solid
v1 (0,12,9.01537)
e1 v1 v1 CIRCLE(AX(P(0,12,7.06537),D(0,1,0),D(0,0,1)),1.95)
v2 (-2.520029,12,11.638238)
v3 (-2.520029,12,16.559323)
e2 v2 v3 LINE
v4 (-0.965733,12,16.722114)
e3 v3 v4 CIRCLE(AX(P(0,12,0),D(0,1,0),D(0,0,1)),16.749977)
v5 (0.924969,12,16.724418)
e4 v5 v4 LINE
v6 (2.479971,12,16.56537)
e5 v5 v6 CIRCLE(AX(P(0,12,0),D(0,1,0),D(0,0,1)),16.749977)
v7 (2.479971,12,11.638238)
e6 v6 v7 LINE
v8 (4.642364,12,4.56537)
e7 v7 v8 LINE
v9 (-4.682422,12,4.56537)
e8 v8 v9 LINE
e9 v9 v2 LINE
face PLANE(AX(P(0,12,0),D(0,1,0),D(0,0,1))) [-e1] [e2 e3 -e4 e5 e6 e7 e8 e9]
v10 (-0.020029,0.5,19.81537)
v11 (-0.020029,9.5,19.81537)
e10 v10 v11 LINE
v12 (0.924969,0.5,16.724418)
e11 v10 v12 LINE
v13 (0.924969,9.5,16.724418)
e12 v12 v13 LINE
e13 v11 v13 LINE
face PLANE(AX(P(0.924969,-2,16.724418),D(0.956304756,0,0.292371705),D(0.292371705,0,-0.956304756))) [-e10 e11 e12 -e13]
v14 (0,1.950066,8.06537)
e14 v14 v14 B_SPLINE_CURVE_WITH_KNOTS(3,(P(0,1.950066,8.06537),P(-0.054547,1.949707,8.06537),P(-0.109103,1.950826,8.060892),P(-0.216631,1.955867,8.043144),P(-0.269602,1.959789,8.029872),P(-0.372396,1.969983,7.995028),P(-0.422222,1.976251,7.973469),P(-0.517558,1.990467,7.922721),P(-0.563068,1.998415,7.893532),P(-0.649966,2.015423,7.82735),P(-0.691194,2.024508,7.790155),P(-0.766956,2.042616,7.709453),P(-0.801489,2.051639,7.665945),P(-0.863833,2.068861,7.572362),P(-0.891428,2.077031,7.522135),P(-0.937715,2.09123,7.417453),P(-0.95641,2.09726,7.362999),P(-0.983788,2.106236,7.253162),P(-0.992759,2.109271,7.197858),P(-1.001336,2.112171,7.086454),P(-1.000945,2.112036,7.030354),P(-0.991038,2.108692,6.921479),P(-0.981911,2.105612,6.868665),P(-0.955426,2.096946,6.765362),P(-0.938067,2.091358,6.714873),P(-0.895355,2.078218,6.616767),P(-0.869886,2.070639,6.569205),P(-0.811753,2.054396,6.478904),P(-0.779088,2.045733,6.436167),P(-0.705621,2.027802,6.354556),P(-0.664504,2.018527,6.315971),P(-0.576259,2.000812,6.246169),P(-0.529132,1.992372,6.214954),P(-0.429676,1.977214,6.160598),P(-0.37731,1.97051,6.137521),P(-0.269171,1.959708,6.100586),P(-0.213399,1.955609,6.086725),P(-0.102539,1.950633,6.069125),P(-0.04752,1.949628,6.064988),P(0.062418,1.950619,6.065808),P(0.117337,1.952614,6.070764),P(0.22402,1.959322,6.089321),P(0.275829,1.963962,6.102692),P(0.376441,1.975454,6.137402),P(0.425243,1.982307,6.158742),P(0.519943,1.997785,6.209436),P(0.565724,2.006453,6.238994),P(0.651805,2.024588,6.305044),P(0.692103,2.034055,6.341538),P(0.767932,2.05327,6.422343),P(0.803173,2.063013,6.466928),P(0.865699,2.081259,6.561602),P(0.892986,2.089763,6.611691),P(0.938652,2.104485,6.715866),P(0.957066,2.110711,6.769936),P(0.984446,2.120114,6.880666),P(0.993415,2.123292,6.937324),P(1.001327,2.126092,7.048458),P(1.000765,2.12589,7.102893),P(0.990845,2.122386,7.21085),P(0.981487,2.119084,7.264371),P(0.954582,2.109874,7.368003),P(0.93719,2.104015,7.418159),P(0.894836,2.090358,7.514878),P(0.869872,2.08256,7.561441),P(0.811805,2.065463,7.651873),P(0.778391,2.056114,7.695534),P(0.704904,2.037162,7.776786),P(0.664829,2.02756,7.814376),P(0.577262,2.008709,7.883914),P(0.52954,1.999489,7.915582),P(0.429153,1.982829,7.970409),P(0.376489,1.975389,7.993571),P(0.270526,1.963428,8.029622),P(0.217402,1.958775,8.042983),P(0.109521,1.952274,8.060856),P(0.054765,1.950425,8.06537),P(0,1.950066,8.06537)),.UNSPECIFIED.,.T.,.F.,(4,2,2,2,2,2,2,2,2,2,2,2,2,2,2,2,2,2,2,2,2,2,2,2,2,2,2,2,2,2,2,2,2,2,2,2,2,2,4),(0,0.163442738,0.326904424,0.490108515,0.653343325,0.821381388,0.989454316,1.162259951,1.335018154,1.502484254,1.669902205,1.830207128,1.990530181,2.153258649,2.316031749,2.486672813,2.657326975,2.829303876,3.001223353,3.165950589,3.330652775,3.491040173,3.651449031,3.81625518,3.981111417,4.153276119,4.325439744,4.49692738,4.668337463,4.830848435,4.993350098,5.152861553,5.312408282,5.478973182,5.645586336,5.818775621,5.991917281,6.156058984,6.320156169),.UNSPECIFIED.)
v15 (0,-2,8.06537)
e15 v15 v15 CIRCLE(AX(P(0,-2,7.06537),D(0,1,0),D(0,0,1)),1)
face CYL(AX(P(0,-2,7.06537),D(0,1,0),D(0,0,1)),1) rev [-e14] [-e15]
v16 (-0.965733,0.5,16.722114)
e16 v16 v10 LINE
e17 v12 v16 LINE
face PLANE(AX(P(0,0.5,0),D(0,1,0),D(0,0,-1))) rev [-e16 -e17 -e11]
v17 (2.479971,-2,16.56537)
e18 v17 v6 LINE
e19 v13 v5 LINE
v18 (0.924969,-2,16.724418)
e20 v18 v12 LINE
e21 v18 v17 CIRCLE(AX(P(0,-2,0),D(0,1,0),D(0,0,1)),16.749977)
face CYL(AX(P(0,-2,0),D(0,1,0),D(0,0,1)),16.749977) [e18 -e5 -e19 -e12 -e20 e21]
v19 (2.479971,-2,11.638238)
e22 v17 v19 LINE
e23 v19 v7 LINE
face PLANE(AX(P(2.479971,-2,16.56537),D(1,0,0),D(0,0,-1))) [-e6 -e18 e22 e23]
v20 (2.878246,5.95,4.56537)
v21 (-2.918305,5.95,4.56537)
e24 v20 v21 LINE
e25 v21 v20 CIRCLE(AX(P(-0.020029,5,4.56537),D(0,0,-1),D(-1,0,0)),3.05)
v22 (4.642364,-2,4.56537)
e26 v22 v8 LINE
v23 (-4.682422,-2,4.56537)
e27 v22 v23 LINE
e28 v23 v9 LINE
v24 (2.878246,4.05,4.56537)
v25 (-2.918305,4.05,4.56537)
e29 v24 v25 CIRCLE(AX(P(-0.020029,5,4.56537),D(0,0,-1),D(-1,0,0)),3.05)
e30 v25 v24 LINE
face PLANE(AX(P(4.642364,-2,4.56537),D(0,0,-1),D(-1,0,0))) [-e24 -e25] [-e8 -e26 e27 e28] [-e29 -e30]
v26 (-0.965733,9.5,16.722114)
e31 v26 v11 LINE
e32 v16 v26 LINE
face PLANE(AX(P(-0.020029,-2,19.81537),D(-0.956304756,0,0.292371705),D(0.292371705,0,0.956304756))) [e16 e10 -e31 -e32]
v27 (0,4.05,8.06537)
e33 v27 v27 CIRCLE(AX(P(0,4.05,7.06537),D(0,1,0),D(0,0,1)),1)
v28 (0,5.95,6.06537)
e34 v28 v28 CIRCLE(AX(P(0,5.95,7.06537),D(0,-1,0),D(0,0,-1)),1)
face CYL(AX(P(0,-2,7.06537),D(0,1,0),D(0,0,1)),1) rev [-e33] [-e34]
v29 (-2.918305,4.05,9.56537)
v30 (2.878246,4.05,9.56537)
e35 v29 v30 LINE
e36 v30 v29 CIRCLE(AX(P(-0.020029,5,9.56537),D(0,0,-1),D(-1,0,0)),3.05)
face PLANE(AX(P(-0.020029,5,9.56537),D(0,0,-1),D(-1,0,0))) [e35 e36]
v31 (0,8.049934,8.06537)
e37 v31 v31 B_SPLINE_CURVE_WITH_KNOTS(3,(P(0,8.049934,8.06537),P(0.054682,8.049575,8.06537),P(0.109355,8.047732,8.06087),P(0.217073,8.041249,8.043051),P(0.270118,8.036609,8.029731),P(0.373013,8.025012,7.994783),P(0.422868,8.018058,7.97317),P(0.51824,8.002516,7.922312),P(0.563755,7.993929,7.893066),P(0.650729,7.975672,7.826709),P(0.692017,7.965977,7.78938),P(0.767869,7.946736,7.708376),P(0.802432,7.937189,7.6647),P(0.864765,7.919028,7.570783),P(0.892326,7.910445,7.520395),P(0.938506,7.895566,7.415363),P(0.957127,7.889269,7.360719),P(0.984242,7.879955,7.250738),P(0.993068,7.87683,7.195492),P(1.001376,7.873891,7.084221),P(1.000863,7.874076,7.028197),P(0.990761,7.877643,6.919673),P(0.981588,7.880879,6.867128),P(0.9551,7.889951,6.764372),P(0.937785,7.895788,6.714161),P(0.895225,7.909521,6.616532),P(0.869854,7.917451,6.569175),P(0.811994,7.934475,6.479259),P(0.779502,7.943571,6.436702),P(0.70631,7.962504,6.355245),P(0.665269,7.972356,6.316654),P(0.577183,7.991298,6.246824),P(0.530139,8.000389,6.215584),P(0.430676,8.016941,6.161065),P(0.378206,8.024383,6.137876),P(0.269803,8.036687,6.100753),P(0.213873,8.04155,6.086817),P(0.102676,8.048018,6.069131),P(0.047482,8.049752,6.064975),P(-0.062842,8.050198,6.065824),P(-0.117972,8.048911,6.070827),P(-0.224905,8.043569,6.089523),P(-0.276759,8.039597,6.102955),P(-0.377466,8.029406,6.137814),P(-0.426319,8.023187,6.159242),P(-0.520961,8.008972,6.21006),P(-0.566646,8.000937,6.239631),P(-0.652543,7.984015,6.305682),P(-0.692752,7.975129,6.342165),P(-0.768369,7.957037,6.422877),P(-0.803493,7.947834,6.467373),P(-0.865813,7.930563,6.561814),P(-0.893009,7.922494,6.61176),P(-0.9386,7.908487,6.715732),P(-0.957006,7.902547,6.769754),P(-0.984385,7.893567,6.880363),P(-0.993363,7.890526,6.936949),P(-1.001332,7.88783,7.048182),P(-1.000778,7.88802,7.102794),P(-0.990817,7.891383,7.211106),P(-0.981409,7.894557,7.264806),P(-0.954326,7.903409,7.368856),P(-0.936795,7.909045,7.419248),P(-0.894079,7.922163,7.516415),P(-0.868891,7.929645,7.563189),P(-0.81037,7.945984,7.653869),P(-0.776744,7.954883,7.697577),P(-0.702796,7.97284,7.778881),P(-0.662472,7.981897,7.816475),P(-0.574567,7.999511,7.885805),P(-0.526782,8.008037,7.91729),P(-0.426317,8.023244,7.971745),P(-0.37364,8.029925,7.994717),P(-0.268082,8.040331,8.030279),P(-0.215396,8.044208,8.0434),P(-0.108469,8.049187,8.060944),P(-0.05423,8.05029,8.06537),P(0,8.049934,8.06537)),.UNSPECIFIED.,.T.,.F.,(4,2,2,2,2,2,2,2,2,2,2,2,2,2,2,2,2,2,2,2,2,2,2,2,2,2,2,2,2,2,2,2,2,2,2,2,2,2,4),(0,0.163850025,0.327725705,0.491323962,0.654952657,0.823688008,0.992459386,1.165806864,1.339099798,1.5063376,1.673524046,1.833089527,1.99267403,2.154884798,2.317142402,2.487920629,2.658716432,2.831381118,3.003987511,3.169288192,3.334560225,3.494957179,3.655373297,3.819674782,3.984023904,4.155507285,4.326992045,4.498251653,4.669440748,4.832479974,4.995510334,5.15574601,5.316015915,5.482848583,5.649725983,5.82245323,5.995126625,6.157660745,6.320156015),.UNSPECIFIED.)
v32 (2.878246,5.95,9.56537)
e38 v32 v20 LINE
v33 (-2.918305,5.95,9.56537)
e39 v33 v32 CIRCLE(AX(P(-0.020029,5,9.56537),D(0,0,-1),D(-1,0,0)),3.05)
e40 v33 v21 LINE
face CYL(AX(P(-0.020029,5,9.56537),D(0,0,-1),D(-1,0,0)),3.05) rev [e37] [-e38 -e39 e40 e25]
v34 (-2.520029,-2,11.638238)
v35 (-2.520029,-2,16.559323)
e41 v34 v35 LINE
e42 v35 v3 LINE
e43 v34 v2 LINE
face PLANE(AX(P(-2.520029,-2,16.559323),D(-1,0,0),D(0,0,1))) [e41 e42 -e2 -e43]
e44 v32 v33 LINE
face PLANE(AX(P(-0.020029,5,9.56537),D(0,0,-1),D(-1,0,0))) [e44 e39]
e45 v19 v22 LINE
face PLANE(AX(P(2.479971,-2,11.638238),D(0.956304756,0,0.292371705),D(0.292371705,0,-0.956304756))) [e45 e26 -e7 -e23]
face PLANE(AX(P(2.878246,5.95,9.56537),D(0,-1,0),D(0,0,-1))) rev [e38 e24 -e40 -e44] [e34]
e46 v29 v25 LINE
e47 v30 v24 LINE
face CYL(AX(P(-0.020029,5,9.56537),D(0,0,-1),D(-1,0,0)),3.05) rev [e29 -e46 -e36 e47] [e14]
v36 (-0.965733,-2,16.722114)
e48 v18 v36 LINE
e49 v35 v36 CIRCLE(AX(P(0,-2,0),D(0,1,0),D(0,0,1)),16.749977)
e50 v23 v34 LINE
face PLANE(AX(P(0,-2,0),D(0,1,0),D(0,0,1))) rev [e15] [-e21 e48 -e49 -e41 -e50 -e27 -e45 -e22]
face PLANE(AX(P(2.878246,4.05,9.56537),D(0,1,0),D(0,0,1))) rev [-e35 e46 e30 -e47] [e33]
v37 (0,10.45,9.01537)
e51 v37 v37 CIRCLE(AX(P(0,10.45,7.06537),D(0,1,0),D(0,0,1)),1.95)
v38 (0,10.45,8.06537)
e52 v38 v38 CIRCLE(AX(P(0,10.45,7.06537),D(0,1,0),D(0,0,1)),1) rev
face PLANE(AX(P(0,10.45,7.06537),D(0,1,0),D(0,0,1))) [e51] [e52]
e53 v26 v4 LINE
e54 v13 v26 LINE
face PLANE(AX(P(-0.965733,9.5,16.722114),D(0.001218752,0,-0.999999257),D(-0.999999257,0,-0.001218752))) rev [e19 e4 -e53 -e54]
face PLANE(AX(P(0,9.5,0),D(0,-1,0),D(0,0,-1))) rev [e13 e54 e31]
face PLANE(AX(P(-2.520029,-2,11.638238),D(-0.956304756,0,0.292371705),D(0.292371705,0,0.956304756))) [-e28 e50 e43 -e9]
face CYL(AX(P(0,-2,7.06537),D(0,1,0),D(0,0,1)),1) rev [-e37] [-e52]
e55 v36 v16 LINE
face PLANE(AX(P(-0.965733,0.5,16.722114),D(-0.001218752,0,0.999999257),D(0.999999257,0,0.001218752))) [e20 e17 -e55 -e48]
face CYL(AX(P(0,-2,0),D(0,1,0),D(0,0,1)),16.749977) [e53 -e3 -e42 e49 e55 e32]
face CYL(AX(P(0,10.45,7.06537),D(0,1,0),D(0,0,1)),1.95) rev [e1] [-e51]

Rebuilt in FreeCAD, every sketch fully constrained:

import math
import FreeCAD as App
import Part
import Sketcher

V = App.Vector
Q = App.Units.Quantity


def add_polygon(sketch, points):
    """Adds a closed chain of lines whose ends are joined by coincident constraints."""
    first, n = sketch.GeometryCount, len(points)
    for a, b in zip(points, points[1:] + points[:1]):
        sketch.addGeometry(Part.LineSegment(App.Vector(*a, 0), App.Vector(*b, 0)), False)
    for i in range(n):
        sketch.addConstraint(Sketcher.Constraint("Coincident", first + i, 2, first + (i + 1) % n, 1))

doc = App.newDocument("Part")
body = doc.addObject("PartDesign::Body", "Body")

# Sketch on XZ plane
sketch1 = body.newObject("Sketcher::SketchObject", "Sketch")
sketch1.AttachmentSupport = (doc.getObject("XZ_Plane"), [""])
sketch1.MapMode = "FlatFace"
sketch1.addGeometry([
    Part.LineSegment(V(4.6, 4.6, 0), V(-4.7, 4.6, 0)),  # 0
    Part.LineSegment(V(-4.7, 4.6, 0), V(-2.5, 11.6, 0)),  # 1
    Part.LineSegment(V(-2.5, 11.6, 0), V(-2.5, 16.6, 0)),  # 2
    Part.ArcOfCircle(Part.Circle(V(0, 0, 0), V(0, 0, 1), 16.7), math.radians(93.31), math.radians(98.65)),  # 3
    Part.LineSegment(V(-1, 16.7, 0), V(0, 19.8, 0)),  # 4
    Part.LineSegment(V(0, 19.8, 0), V(0.9, 16.7, 0)),  # 5
    Part.ArcOfCircle(Part.Circle(V(0, 0, 0), V(0, 0, 1), 16.7), math.radians(81.49), math.radians(86.83)),  # 6
    Part.LineSegment(V(2.5, 16.6, 0), V(2.5, 11.6, 0)),  # 7
    Part.LineSegment(V(2.5, 11.6, 0), V(4.6, 4.6, 0)),  # 8
], False)
sketch1.addConstraint([
    Sketcher.Constraint("Coincident", 0, 2, 1, 1),
    Sketcher.Constraint("Coincident", 1, 2, 2, 1),
    Sketcher.Constraint("Coincident", 2, 2, 3, 2),
    Sketcher.Constraint("Coincident", 3, 1, 4, 1),
    Sketcher.Constraint("Coincident", 4, 2, 5, 1),
    Sketcher.Constraint("Coincident", 5, 2, 6, 2),
    Sketcher.Constraint("Coincident", 6, 1, 7, 1),
    Sketcher.Constraint("Coincident", 7, 2, 8, 1),
    Sketcher.Constraint("Coincident", 8, 2, 0, 1),
    Sketcher.Constraint("Horizontal", 0),
    Sketcher.Constraint("Vertical", 2),
    Sketcher.Constraint("Vertical", 7),
    Sketcher.Constraint("Coincident", 3, 3, -1, 1),
    Sketcher.Constraint("Coincident", 6, 3, -1, 1),
    Sketcher.Constraint("Equal", 3, 6),
    Sketcher.Constraint("Parallel", 1, 4),
    Sketcher.Constraint("Parallel", 5, 8),
    Sketcher.Constraint("Horizontal", 1, 2, 7, 2),
    Sketcher.Constraint("Equal", 1, 8),
    Sketcher.Constraint("Angle", 1, Q("73 deg")),
    Sketcher.Constraint("DistanceX", 2, 2, 6, 1, Q("5 mm")),
    Sketcher.Constraint("DistanceX", 2, 2, 4, 2, Q("2.5 mm")),
    Sketcher.Constraint("DistanceY", 0, 2, 4, 2, Q("15.25 mm")),
    Sketcher.Constraint("DistanceY", 6, 1, 4, 2, Q("3.25 mm")),
    Sketcher.Constraint("Radius", 3, Q("16.749977 mm")),
    Sketcher.Constraint("DistanceX", 4, 2, 5, 2, Q("0.944999 mm")),
    Sketcher.Constraint("DistanceY", 7, 2, 7, 1, Q("4.927132 mm")),
])
pad1 = body.newObject("PartDesign::Pad", "Pad")
pad1.Profile = sketch1
pad1.Type = "TwoLengths"
pad1.Length = 12
pad1.Length2 = 2
pad1.Reversed = True

# Sketch on XY plane
sketch2 = body.newObject("Sketcher::SketchObject", "Sketch001")
sketch2.AttachmentSupport = (doc.getObject("XY_Plane"), [""])
sketch2.MapMode = "FlatFace"
sketch2.AttachmentOffset = App.Placement(V(0, 0, 4.56537), App.Rotation())
sketch2.addGeometry([
    Part.LineSegment(V(2.9, 6, 0), V(-2.9, 6, 0)),
    Part.ArcOfCircle(Part.Circle(V(0, 5, 0), V(0, 0, 1), 3), math.radians(18), math.radians(162)),
    Part.LineSegment(V(-2.9, 4, 0), V(2.9, 4, 0)),
    Part.ArcOfCircle(Part.Circle(V(0, 5, 0), V(0, 0, 1), 3), math.radians(-162), math.radians(-18)),
], False)
sketch2.addConstraint([
    Sketcher.Constraint("Coincident", 0, 1, 1, 1),
    Sketcher.Constraint("Coincident", 1, 2, 0, 2),
    Sketcher.Constraint("Coincident", 2, 1, 3, 1),
    Sketcher.Constraint("Coincident", 3, 2, 2, 2),
    Sketcher.Constraint("Horizontal", 0),
    Sketcher.Constraint("Horizontal", 2),
    Sketcher.Constraint("Coincident", 3, 3, 1, 3),
    Sketcher.Constraint("Equal", 1, 3),
    Sketcher.Constraint("Vertical", 1, 2, 2, 1),
    Sketcher.Constraint("Radius", 1, Q("3.05 mm")),
    Sketcher.Constraint("DistanceY", -1, 1, 1, 3, Q("5 mm")),
    Sketcher.Constraint("DistanceY", 2, 1, 1, 2, Q("1.9 mm")),
    Sketcher.Constraint("DistanceX", 1, 3, -1, 1, Q("0.020029 mm")),
])
pocket1 = body.newObject("PartDesign::Pocket", "Pocket")
pocket1.Profile = sketch2
pocket1.Length = 5
pocket1.Reversed = True

# Sketch on XZ plane
sketch3 = body.newObject("Sketcher::SketchObject", "Sketch002")
sketch3.AttachmentSupport = (doc.getObject("XZ_Plane"), [""])
sketch3.MapMode = "FlatFace"
sketch3.AttachmentOffset = App.Placement(V(0, 0, -5.74), App.Rotation())
sketch3.addGeometry(Part.Circle(V(0, 7.1, 0), V(0, 0, 1), 1), False)
sketch3.addConstraint([
    Sketcher.Constraint("PointOnObject", 0, 3, -2),
    Sketcher.Constraint("Diameter", 0, Q("2 mm")),
    Sketcher.Constraint("DistanceY", -1, 1, 0, 3, Q("7.06537 mm")),
])
pocket2 = body.newObject("PartDesign::Pocket", "Pocket001")
pocket2.Profile = sketch3
pocket2.Type = "ThroughAll"
pocket2.Midplane = True

# Sketch on XZ plane
sketch4 = body.newObject("Sketcher::SketchObject", "Sketch003")
sketch4.AttachmentSupport = (doc.getObject("XZ_Plane"), [""])
sketch4.MapMode = "FlatFace"
sketch4.AttachmentOffset = App.Placement(V(0, 0, -12), App.Rotation())
sketch4.addGeometry(Part.Circle(V(0, 7.1, 0), V(0, 0, 1), 1.9), False)
sketch4.addConstraint([
    Sketcher.Constraint("PointOnObject", 0, 3, -2),
    Sketcher.Constraint("Diameter", 0, Q("3.9 mm")),
    Sketcher.Constraint("DistanceY", -1, 1, 0, 3, Q("7.06537 mm")),
])
pocket3 = body.newObject("PartDesign::Pocket", "Pocket002")
pocket3.Profile = sketch4
pocket3.Length = 1.55
pocket3.Reversed = True

# Sketch on XZ plane
sketch5 = body.newObject("Sketcher::SketchObject", "Sketch004")
sketch5.AttachmentSupport = (doc.getObject("XZ_Plane"), [""])
sketch5.MapMode = "FlatFace"
sketch5.AttachmentOffset = App.Placement(V(0, 0, -12), App.Rotation())
add_polygon(sketch5, [(0, 19.8), (0.9, 16.7), (-1, 16.7)])  # lines 0-2
sketch5.addConstraint([
    Sketcher.Constraint("Angle", 0, Q("-73 deg")),
    Sketcher.Constraint("Angle", 2, Q("73 deg")),
    Sketcher.Constraint("DistanceX", 2, 2, 0, 2, Q("0.944999 mm")),
    Sketcher.Constraint("DistanceX", 1, 2, 0, 2, Q("1.890702 mm")),
    Sketcher.Constraint("DistanceX", -1, 1, 0, 2, Q("0.924969 mm")),
    Sketcher.Constraint("DistanceY", -1, 1, 0, 2, Q("16.724418 mm")),
])
pocket4 = body.newObject("PartDesign::Pocket", "Pocket003")
pocket4.Profile = sketch5
pocket4.Length = 2.5
pocket4.Reversed = True
doc.recompute()

datumplane = body.newObject("PartDesign::Plane", "DatumPlane")
datumplane.AttachmentSupport = (doc.getObject("XZ_Plane"), [""])
datumplane.MapMode = "FlatFace"
datumplane.AttachmentOffset = App.Placement(V(0, 0, -5), App.Rotation())
mirrored = body.newObject("PartDesign::Mirrored", "Mirrored")
mirrored.Originals = [pocket4]
mirrored.MirrorPlane = (datumplane, [""])
body.Tip = mirrored

doc.recompute()
